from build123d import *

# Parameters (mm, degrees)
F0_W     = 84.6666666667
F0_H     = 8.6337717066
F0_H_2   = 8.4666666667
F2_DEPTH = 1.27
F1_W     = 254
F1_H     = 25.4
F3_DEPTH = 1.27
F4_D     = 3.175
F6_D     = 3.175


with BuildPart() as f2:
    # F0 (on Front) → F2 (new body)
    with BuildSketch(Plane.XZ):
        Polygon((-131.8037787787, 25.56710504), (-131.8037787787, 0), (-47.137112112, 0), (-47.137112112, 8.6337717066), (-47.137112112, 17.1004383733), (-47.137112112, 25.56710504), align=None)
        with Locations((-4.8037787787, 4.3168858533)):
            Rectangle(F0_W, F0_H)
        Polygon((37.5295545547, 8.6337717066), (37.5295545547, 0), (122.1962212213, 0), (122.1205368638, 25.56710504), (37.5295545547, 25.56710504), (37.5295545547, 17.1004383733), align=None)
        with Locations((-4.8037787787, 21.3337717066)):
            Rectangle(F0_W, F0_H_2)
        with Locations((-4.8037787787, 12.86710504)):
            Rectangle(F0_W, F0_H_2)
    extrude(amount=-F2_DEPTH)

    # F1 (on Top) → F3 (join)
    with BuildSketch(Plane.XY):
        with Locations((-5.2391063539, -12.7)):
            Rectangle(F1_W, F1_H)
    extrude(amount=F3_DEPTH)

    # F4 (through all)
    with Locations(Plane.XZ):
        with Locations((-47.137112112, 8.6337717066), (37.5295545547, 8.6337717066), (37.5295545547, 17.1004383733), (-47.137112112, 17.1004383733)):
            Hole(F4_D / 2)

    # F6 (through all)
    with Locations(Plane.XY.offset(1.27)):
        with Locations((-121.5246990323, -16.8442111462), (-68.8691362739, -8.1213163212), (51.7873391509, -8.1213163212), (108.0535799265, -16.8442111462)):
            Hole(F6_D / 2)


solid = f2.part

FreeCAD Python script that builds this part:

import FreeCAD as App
import Part
import Sketcher
from FreeCAD import Vector
Q = App.Units.Quantity


def add_polygon(sketch, points):
    """Adds a closed chain of lines whose ends are joined by coincident constraints."""
    first, n = sketch.GeometryCount, len(points)
    for a, b in zip(points, points[1:] + points[:1]):
        sketch.addGeometry(Part.LineSegment(App.Vector(*a, 0), App.Vector(*b, 0)), False)
    for i in range(n):
        sketch.addConstraint(Sketcher.Constraint("Coincident", first + i, 2, first + (i + 1) % n, 1))

doc = App.newDocument("Part")
body = doc.addObject("PartDesign::Body", "Body")

# Sketch on XZ plane
sketch1 = body.newObject("Sketcher::SketchObject", "Sketch")
sketch1.AttachmentSupport = (doc.getObject("XZ_Plane"), [""])
sketch1.MapMode = "FlatFace"
add_polygon(sketch1, [(-132, 26), (-132, 0), (122, 0), (122, 26)])  # lines 0-3
sketch1.addConstraint([
    Sketcher.Constraint("Vertical", 0),
    Sketcher.Constraint("Horizontal", 1),
    Sketcher.Constraint("Horizontal", 3),
    Sketcher.Constraint("PointOnObject", 0, 2, -1),
    Sketcher.Constraint("DistanceX", 1, 1, 1, 2, Q("10 in")),
    Sketcher.Constraint("DistanceX", 3, 2, 3, 1, Q("253.924316 mm")),
    Sketcher.Constraint("DistanceY", 0, 2, 0, 1, Q("25.567105 mm")),
    Sketcher.Constraint("DistanceX", 0, 2, -1, 1, Q("131.803779 mm")),
])
pad1 = body.newObject("PartDesign::Pad", "Pad")
pad1.Profile = sketch1
pad1.Length = Q("0.05 in")
pad1.Reversed = True

# Sketch on XY plane
sketch2 = body.newObject("Sketcher::SketchObject", "Sketch001")
sketch2.AttachmentSupport = (doc.getObject("XY_Plane"), [""])
sketch2.MapMode = "FlatFace"
add_polygon(sketch2, [(-132, 0), (-132, -25), (122, -25), (122, 0)])  # lines 0-3
sketch2.addConstraint([
    Sketcher.Constraint("Vertical", 0),
    Sketcher.Constraint("Horizontal", 1),
    Sketcher.Constraint("Vertical", 2),
    Sketcher.Constraint("Horizontal", 3),
    Sketcher.Constraint("PointOnObject", 2, 2, -1),
    Sketcher.Constraint("DistanceX", 1, 1, 1, 2, Q("10 in")),
    Sketcher.Constraint("DistanceY", 0, 2, 0, 1, Q("1 in")),
    Sketcher.Constraint("DistanceX", 0, 2, -1, 1, Q("132.239106 mm")),
])
pad2 = body.newObject("PartDesign::Pad", "Pad001")
pad2.Profile = sketch2
pad2.Length = Q("0.05 in")

# Sketch on XZ plane
sketch3 = body.newObject("Sketcher::SketchObject", "Sketch002")
sketch3.AttachmentSupport = (doc.getObject("XZ_Plane"), [""])
sketch3.MapMode = "FlatFace"
sketch3.addGeometry([
    Part.Circle(Vector(-47.1, 8.6, 0), Vector(0, 0, 1), 1.6),
    Part.Circle(Vector(37.5, 8.6, 0), Vector(0, 0, 1), 1.6),
    Part.Circle(Vector(37.5, 17.1, 0), Vector(0, 0, 1), 1.6),
    Part.Circle(Vector(-47.1, 17.1, 0), Vector(0, 0, 1), 1.6),
], False)
sketch3.addConstraint([
    Sketcher.Constraint("Equal", 0, 1),
    Sketcher.Constraint("Equal", 1, 2),
    Sketcher.Constraint("Equal", 2, 3),
    Sketcher.Constraint("Horizontal", 0, 3, 1, 3),
    Sketcher.Constraint("Horizontal", 2, 3, 3, 3),
    Sketcher.Constraint("Vertical", 1, 3, 2, 3),
    Sketcher.Constraint("Vertical", 0, 3, 3, 3),
    Sketcher.Constraint("Diameter", 0, Q("0.125 in")),
    Sketcher.Constraint("DistanceY", -1, 1, 0, 3, Q("8.633772 mm")),
    Sketcher.Constraint("DistanceY", -1, 1, 2, 3, Q("17.100438 mm")),
    Sketcher.Constraint("DistanceX", 0, 3, -1, 1, Q("47.137112 mm")),
    Sketcher.Constraint("DistanceX", -1, 1, 1, 3, Q("37.529555 mm")),
])
doc.recompute()
hole = body.newObject("PartDesign::Hole", "Hole")
hole.Profile = sketch3
hole.ThreadType = "None"
hole.Diameter = Q("0.125 in")
hole.DepthType = "ThroughAll"

# Sketch on XY plane
sketch4 = body.newObject("Sketcher::SketchObject", "Sketch003")
sketch4.AttachmentSupport = (doc.getObject("XY_Plane"), [""])
sketch4.MapMode = "FlatFace"
sketch4.AttachmentOffset = App.Placement(Vector(0, 0, 0.05 * 25.4), App.Rotation())
sketch4.addGeometry([
    Part.Circle(Vector(-121.5, -16.8, 0), Vector(0, 0, 1), 1.6),
    Part.Circle(Vector(-68.9, -8.1, 0), Vector(0, 0, 1), 1.6),
    Part.Circle(Vector(51.8, -8.1, 0), Vector(0, 0, 1), 1.6),
    Part.Circle(Vector(108.1, -16.8, 0), Vector(0, 0, 1), 1.6),
], False)
sketch4.addConstraint([
    Sketcher.Constraint("Equal", 0, 1),
    Sketcher.Constraint("Equal", 1, 2),
    Sketcher.Constraint("Equal", 2, 3),
    Sketcher.Constraint("Horizontal", 1, 3, 2, 3),
    Sketcher.Constraint("Horizontal", 0, 3, 3, 3),
    Sketcher.Constraint("Diameter", 0, Q("0.125 in")),
    Sketcher.Constraint("DistanceX", 0, 3, -1, 1, Q("121.524699 mm")),
    Sketcher.Constraint("DistanceY", 0, 3, -1, 1, Q("16.844211 mm")),
    Sketcher.Constraint("DistanceX", -1, 1, 2, 3, Q("51.787339 mm")),
    Sketcher.Constraint("DistanceX", -1, 1, 3, 3, Q("108.05358 mm")),
    Sketcher.Constraint("DistanceX", 1, 3, -1, 1, Q("68.869136 mm")),
    Sketcher.Constraint("DistanceY", 1, 3, -1, 1, Q("8.121316 mm")),
])
doc.recompute()
hole2 = body.newObject("PartDesign::Hole", "Hole001")
hole2.Profile = sketch4
hole2.ThreadType = "None"
hole2.Diameter = Q("0.125 in")
hole2.DepthType = "ThroughAll"

doc.recompute()
